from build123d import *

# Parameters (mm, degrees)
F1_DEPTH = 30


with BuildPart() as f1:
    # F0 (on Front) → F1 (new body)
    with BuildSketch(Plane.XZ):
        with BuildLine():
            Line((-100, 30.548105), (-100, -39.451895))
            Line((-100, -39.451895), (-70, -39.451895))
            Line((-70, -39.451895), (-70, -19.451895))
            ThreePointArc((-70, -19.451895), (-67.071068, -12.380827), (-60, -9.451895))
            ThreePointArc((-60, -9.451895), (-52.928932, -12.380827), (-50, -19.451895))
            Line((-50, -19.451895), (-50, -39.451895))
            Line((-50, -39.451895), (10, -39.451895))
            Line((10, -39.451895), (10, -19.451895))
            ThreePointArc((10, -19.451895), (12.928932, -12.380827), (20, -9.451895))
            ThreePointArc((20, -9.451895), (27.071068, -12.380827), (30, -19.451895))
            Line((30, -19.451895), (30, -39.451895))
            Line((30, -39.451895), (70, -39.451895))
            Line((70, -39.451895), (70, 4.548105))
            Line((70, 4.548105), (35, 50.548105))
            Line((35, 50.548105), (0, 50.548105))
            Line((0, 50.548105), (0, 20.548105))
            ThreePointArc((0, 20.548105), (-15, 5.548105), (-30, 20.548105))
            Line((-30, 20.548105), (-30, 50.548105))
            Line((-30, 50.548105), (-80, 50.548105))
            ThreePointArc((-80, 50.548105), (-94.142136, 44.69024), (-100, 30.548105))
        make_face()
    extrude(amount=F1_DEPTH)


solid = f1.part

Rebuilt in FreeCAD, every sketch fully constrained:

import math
import FreeCAD as App
import Part
import Sketcher

V = App.Vector

doc = App.newDocument("Part")
body = doc.addObject("PartDesign::Body", "Body")

sketch1 = doc.addObject("Sketcher::SketchObject", "Sketch")
body.addObject(sketch1)
sketch1.AttachmentSupport = (doc.XZ_Plane, [""])
sketch1.MapMode = "FlatFace"
sketch1.addGeometry([
    Part.LineSegment(V(-100, 31, 0), V(-100, -39, 0)),
    Part.LineSegment(V(-100, -39, 0), V(-70, -39, 0)),
    Part.LineSegment(V(-70, -39, 0), V(-70, -19, 0)),
    Part.ArcOfCircle(Part.Circle(V(-60, -19, 0), V(0, 0, 1), 10), math.radians(90), math.radians(180)),
    Part.ArcOfCircle(Part.Circle(V(-60, -19, 0), V(0, 0, 1), 10), math.radians(0), math.radians(90)),
    Part.LineSegment(V(-50, -19, 0), V(-50, -39, 0)),
    Part.LineSegment(V(-50, -39, 0), V(10, -39, 0)),
    Part.LineSegment(V(10, -39, 0), V(10, -19, 0)),
    Part.ArcOfCircle(Part.Circle(V(20, -19, 0), V(0, 0, 1), 10), math.radians(90), math.radians(180)),
    Part.ArcOfCircle(Part.Circle(V(20, -19, 0), V(0, 0, 1), 10), math.radians(0), math.radians(90)),
    Part.LineSegment(V(30, -19, 0), V(30, -39, 0)),
    Part.LineSegment(V(30, -39, 0), V(70, -39, 0)),
    Part.LineSegment(V(70, -39, 0), V(70, 5, 0)),
    Part.LineSegment(V(70, 5, 0), V(35, 51, 0)),
    Part.LineSegment(V(35, 51, 0), V(0, 51, 0)),
    Part.LineSegment(V(0, 51, 0), V(0, 21, 0)),
    Part.ArcOfCircle(Part.Circle(V(-15, 21, 0), V(0, 0, 1), 15), math.radians(180), math.radians(360)),
    Part.LineSegment(V(-30, 21, 0), V(-30, 51, 0)),
    Part.LineSegment(V(-30, 51, 0), V(-80, 51, 0)),
    Part.ArcOfCircle(Part.Circle(V(-80, 31, 0), V(0, 0, 1), 20), math.radians(90), math.radians(180)),
], False)
sketch1.addConstraint([
    Sketcher.Constraint("Coincident", 0, 2, 1, 1),
    Sketcher.Constraint("Coincident", 1, 2, 2, 1),
    Sketcher.Constraint("Tangent", 2, 2, 3, 2),
    Sketcher.Constraint("Tangent", 3, 1, 4, 2),
    Sketcher.Constraint("Tangent", 4, 1, 5, 1),
    Sketcher.Constraint("Coincident", 5, 2, 6, 1),
    Sketcher.Constraint("Coincident", 6, 2, 7, 1),
    Sketcher.Constraint("Tangent", 7, 2, 8, 2),
    Sketcher.Constraint("Tangent", 8, 1, 9, 2),
    Sketcher.Constraint("Tangent", 9, 1, 10, 1),
    Sketcher.Constraint("Coincident", 10, 2, 11, 1),
    Sketcher.Constraint("Coincident", 11, 2, 12, 1),
    Sketcher.Constraint("Coincident", 12, 2, 13, 1),
    Sketcher.Constraint("Coincident", 13, 2, 14, 1),
    Sketcher.Constraint("Coincident", 14, 2, 15, 1),
    Sketcher.Constraint("Tangent", 15, 2, 16, 2),
    Sketcher.Constraint("Tangent", 16, 1, 17, 1),
    Sketcher.Constraint("Coincident", 17, 2, 18, 1),
    Sketcher.Constraint("Tangent", 18, 2, 19, 1),
    Sketcher.Constraint("Tangent", 19, 2, 0, 1),
    Sketcher.Constraint("Vertical", 0),
    Sketcher.Constraint("Horizontal", 1),
    Sketcher.Constraint("Vertical", 2),
    Sketcher.Constraint("Vertical", 5),
    Sketcher.Constraint("Horizontal", 6),
    Sketcher.Constraint("Vertical", 7),
    Sketcher.Constraint("Vertical", 10),
    Sketcher.Constraint("Horizontal", 11),
    Sketcher.Constraint("Vertical", 12),
    Sketcher.Constraint("Horizontal", 14),
    Sketcher.Constraint("Vertical", 15),
    Sketcher.Constraint("Vertical", 17),
    Sketcher.Constraint("Horizontal", 18),
    Sketcher.Constraint("Equal", 3, 4),
    Sketcher.Constraint("Equal", 4, 8),
    Sketcher.Constraint("Equal", 8, 9),
    Sketcher.Constraint("Symmetric", 1, 2, 11, 2, -2),
    Sketcher.Constraint("PointOnObject", 14, 2, -2),
    Sketcher.Constraint("Horizontal", 4, 3, 8, 3),
    Sketcher.Constraint("Horizontal", 1, 2, 5, 2),
    Sketcher.Constraint("Horizontal", 14, 2, 17, 2),
    Sketcher.Constraint("Vertical", 4, 3, 3, 1),
    Sketcher.Constraint("Vertical", 9, 3, 8, 1),
    Sketcher.Constraint("Equal", 1, 15),
    Sketcher.Constraint("Radius", 3, 9.999999),
    Sketcher.Constraint("Radius", 16, 15.0),
    Sketcher.Constraint("Radius", 19, 20.0),
    Sketcher.Constraint("DistanceX", 1, 1, 1, 2, 30.0),
    Sketcher.Constraint("DistanceX", 6, 1, 6, 2, 60.0),
    Sketcher.Constraint("DistanceX", 11, 1, 11, 2, 40.0),
    Sketcher.Constraint("DistanceX", 14, 2, 14, 1, 35.0),
    Sketcher.Constraint("DistanceY", 0, 2, 0, 1, 70.0),
    Sketcher.Constraint("DistanceY", 2, 1, 2, 2, 20.0),
    Sketcher.Constraint("DistanceY", 12, 1, 12, 2, 44.0),
    Sketcher.Constraint("DistanceY", 3, 3, -1, 1, 19.451894),
])
pad1 = doc.addObject("PartDesign::Pad", "Pad")
body.addObject(pad1)
pad1.Profile = sketch1
pad1.Length = 30

doc.recompute()
